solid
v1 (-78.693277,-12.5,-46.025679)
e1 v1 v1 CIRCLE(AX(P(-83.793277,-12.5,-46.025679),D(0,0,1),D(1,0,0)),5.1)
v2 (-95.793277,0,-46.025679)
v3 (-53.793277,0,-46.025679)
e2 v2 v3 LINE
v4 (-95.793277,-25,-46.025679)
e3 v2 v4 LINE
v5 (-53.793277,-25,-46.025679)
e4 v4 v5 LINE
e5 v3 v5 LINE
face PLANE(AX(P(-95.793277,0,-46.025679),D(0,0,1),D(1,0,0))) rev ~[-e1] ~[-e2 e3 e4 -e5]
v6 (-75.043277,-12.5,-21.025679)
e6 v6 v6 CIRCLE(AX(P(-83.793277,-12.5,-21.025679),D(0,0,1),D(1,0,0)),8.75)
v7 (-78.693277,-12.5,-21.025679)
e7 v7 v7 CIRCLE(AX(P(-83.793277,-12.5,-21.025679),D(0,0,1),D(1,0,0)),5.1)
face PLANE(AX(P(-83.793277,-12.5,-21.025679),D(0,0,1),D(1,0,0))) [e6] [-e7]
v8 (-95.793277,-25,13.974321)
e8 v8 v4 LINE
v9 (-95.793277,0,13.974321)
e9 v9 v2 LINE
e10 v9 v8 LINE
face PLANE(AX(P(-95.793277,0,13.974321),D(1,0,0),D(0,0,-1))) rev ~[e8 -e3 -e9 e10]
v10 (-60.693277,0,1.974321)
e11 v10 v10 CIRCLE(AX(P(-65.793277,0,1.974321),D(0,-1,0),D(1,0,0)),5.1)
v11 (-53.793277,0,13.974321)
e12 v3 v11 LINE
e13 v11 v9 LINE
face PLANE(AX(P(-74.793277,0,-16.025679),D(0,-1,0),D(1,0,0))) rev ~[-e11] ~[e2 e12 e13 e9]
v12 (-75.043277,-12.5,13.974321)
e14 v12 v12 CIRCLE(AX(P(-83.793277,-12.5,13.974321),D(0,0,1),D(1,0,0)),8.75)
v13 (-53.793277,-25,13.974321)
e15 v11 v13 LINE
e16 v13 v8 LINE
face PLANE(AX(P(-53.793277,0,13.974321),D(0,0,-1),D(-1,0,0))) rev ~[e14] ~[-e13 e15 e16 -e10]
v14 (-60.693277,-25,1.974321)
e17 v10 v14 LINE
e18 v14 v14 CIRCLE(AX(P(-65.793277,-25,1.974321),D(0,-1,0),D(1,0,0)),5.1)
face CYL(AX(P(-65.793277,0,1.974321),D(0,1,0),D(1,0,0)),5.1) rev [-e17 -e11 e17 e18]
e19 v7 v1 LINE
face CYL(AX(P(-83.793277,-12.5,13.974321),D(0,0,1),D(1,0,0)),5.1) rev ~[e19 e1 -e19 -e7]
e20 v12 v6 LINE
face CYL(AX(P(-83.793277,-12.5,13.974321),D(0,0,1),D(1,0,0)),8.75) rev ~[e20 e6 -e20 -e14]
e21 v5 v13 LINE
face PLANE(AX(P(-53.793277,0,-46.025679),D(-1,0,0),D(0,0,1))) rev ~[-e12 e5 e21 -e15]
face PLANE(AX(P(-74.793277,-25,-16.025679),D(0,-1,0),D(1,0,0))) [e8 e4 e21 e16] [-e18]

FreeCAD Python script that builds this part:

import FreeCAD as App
import Part
import Sketcher
Q = App.Units.Quantity

doc = App.newDocument("Part")
body = doc.addObject("PartDesign::Body", "Body")

# Sketch on XZ plane
sketch1 = body.newObject("Sketcher::SketchObject", "Sketch")
sketch1.AttachmentSupport = (doc.getObject("XZ_Plane"), [""])
sketch1.MapMode = "FlatFace"
sketch1.addGeometry([
    Part.LineSegment(App.Vector(-96, 14, 0), App.Vector(-96, -46, 0)),  # 0
    Part.LineSegment(App.Vector(-96, -46, 0), App.Vector(-54, -46, 0)),  # 1
    Part.LineSegment(App.Vector(-54, -46, 0), App.Vector(-54, 14, 0)),  # 2
    Part.LineSegment(App.Vector(-54, 14, 0), App.Vector(-96, 14, 0)),  # 3
    Part.Circle(App.Vector(-66, 2, 0), App.Vector(0, 0, 1), 5),  # 4
], False)
sketch1.addConstraint([
    Sketcher.Constraint("Coincident", 0, 2, 1, 1),
    Sketcher.Constraint("Coincident", 1, 2, 2, 1),
    Sketcher.Constraint("Coincident", 2, 2, 3, 1),
    Sketcher.Constraint("Coincident", 3, 2, 0, 1),
    Sketcher.Constraint("Vertical", 0),
    Sketcher.Constraint("Horizontal", 1),
    Sketcher.Constraint("Vertical", 2),
    Sketcher.Constraint("Horizontal", 3),
    Sketcher.Constraint("Diameter", 4, Q("10.2 mm")),
    Sketcher.Constraint("DistanceX", 1, 1, 1, 2, Q("42 mm")),
    Sketcher.Constraint("DistanceY", 0, 2, 0, 1, Q("60 mm")),
    Sketcher.Constraint("DistanceX", 0, 2, 4, 3, Q("30 mm")),
    Sketcher.Constraint("DistanceY", 0, 2, 4, 3, Q("48 mm")),
    Sketcher.Constraint("DistanceY", -1, 1, 4, 3, Q("1.974321 mm")),
    Sketcher.Constraint("DistanceX", 4, 3, -1, 1, Q("65.793277 mm")),
])
pad1 = body.newObject("PartDesign::Pad", "Pad")
pad1.Profile = sketch1
pad1.Length = 25

# Sketch on XY plane
sketch2 = body.newObject("Sketcher::SketchObject", "Sketch001")
sketch2.AttachmentSupport = (doc.getObject("XY_Plane"), [""])
sketch2.MapMode = "FlatFace"
sketch2.AttachmentOffset = App.Placement(App.Vector(0, 0, 13.974321), App.Rotation())
sketch2.addGeometry(Part.Circle(App.Vector(-84, -12, 0), App.Vector(0, 0, 1), 5), False)
sketch2.addConstraint([
    Sketcher.Constraint("Diameter", 0, Q("10.2 mm")),
    Sketcher.Constraint("DistanceY", 0, 3, -1, 1, Q("12.5 mm")),
    Sketcher.Constraint("DistanceX", 0, 3, -1, 1, Q("83.793277 mm")),
])
pocket1 = body.newObject("PartDesign::Pocket", "Pocket")
pocket1.Profile = sketch2
pocket1.Length = 63.5

# Sketch on XY plane
sketch3 = body.newObject("Sketcher::SketchObject", "Sketch002")
sketch3.AttachmentSupport = (doc.getObject("XY_Plane"), [""])
sketch3.MapMode = "FlatFace"
sketch3.AttachmentOffset = App.Placement(App.Vector(0, 0, 13.974321), App.Rotation())
sketch3.addGeometry([
    Part.Circle(App.Vector(-84, -12, 0), App.Vector(0, 0, 1), 9),
    Part.Circle(App.Vector(-84, -12, 0), App.Vector(0, 0, 1), 5),
], False)
sketch3.addConstraint([
    Sketcher.Constraint("Coincident", 1, 3, 0, 3),
    Sketcher.Constraint("Diameter", 0, Q("17.5 mm")),
    Sketcher.Constraint("Diameter", 1, Q("10.2 mm")),
    Sketcher.Constraint("DistanceY", 0, 3, -1, 1, Q("12.5 mm")),
    Sketcher.Constraint("DistanceX", 0, 3, -1, 1, Q("83.793277 mm")),
])
pocket2 = body.newObject("PartDesign::Pocket", "Pocket001")
pocket2.Profile = sketch3
pocket2.Length = 35

doc.recompute()
